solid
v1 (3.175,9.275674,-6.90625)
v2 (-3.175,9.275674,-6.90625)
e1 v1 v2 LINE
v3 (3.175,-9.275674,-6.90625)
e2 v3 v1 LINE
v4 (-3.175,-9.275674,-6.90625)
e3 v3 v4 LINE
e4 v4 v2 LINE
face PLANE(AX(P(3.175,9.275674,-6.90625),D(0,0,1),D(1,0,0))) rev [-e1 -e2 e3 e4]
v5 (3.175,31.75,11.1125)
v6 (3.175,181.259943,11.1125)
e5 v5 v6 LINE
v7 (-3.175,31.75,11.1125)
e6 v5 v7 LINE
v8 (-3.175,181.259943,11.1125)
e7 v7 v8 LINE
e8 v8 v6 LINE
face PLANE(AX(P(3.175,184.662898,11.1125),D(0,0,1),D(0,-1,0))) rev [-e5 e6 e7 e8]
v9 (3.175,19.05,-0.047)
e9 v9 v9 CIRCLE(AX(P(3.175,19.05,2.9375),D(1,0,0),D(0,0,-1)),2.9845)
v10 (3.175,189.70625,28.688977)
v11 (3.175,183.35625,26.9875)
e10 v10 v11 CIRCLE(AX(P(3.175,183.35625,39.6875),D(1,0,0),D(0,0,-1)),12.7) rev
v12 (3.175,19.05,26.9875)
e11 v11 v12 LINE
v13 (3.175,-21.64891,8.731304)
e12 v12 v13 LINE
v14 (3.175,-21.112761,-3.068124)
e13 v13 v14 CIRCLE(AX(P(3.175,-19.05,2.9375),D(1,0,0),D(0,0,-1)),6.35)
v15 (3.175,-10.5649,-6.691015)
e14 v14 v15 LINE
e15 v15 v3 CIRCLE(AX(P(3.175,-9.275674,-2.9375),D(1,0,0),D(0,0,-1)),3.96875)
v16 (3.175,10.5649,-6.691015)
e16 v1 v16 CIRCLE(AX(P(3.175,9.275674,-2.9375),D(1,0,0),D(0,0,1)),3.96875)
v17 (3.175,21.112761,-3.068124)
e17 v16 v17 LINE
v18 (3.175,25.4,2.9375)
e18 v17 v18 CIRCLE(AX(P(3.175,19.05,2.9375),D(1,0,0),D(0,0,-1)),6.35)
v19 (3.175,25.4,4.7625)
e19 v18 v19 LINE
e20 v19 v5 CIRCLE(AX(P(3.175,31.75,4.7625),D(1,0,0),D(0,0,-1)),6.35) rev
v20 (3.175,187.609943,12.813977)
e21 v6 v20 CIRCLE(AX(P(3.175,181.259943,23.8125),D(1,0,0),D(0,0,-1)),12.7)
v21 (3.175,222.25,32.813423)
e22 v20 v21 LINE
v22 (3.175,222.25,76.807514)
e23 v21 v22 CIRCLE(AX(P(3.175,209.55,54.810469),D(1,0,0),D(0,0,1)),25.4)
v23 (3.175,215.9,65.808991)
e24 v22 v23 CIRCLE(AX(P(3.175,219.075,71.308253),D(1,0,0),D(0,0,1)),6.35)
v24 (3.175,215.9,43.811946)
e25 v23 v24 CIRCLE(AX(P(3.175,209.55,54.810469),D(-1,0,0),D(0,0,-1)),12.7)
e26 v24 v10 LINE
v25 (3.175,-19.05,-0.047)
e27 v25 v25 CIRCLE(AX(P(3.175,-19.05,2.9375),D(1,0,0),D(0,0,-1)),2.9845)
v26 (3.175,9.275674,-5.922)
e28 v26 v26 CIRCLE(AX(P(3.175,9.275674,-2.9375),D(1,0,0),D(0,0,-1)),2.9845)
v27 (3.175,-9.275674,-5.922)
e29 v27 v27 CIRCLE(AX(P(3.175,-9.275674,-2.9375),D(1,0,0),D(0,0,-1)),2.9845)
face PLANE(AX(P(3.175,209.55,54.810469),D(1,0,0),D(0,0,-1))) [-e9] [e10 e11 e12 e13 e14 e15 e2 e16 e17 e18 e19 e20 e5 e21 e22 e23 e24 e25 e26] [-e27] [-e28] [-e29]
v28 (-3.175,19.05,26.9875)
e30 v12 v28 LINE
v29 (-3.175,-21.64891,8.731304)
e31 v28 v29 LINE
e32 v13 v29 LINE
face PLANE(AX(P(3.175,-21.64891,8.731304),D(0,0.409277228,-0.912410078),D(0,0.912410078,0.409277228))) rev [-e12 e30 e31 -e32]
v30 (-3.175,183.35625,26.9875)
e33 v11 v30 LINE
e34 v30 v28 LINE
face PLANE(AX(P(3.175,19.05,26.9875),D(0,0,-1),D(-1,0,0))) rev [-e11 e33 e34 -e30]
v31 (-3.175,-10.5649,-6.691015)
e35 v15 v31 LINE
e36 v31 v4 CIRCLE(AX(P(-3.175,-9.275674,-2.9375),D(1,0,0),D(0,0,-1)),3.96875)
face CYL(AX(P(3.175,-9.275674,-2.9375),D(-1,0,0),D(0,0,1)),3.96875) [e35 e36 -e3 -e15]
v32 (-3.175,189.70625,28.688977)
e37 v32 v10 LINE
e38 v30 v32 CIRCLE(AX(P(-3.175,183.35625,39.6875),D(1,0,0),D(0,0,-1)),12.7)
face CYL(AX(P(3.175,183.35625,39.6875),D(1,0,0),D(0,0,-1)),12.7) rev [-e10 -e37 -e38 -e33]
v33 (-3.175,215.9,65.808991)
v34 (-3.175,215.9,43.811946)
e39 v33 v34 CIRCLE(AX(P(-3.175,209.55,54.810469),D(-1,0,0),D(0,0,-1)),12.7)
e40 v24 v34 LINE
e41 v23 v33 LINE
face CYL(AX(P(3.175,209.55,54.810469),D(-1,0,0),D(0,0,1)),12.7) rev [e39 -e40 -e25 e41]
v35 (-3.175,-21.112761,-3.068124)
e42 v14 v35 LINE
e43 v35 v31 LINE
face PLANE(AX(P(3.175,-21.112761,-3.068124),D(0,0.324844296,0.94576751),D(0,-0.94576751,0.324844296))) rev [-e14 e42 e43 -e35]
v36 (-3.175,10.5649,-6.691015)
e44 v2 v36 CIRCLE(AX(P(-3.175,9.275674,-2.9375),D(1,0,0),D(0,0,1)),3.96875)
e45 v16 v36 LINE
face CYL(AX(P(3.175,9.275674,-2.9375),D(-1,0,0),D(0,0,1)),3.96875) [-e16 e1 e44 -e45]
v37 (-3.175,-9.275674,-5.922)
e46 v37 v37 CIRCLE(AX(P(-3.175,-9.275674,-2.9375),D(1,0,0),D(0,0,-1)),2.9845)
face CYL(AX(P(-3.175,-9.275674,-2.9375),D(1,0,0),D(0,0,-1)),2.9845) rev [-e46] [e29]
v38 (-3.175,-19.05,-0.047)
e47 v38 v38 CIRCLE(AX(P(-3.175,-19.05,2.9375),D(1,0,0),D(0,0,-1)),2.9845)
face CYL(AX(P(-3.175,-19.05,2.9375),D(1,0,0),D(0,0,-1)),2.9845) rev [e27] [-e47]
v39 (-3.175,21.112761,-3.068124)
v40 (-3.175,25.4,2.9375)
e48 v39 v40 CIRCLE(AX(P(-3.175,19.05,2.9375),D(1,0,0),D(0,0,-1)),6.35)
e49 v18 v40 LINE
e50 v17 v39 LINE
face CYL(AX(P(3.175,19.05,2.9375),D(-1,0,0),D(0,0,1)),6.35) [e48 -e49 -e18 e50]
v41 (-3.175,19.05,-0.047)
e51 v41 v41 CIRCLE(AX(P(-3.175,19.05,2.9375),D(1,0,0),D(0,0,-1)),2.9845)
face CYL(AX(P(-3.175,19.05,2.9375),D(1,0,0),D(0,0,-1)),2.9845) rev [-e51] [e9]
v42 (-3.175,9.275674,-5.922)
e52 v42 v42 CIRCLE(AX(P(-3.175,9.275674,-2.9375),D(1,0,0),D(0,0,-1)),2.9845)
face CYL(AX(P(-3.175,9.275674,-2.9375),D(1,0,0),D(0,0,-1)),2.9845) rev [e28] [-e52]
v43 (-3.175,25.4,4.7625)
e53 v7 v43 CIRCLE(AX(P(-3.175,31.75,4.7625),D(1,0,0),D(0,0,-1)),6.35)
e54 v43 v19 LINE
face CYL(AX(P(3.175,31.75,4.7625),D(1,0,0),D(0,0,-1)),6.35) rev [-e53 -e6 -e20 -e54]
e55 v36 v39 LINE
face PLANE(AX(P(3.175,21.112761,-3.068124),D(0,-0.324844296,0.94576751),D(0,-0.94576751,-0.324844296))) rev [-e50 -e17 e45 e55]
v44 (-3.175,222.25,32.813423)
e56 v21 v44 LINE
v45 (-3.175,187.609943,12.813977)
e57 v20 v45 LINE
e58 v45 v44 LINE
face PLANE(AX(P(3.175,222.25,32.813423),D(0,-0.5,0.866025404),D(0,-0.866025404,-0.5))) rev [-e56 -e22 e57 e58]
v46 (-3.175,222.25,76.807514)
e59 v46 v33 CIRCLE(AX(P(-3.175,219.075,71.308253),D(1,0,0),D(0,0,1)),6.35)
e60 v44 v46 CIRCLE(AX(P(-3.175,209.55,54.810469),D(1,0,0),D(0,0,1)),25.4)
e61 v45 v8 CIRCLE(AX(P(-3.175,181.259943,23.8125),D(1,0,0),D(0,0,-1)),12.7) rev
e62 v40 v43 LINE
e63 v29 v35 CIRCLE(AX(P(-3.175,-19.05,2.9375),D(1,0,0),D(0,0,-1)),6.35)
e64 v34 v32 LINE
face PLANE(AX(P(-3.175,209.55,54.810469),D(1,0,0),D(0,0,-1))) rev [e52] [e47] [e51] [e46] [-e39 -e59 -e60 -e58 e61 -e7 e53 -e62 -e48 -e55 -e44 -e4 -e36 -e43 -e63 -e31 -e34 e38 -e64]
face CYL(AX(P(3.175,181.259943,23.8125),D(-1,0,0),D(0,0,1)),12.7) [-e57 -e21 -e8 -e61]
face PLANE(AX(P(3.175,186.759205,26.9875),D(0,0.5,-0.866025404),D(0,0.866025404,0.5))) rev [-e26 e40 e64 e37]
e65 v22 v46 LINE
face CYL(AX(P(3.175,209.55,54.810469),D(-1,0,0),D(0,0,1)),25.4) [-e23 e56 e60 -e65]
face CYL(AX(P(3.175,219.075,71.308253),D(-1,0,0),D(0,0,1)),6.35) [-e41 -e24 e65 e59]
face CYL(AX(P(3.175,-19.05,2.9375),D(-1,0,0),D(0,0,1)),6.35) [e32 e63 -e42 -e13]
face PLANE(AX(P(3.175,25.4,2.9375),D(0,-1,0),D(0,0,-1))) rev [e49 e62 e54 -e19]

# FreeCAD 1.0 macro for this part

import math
import FreeCAD as App
import Part
import Sketcher
Q = App.Units.Quantity


def edges_at(feature, points):
    """Names of the edges that pass closest to the given points."""
    edges = feature.Shape.Edges
    near = lambda p: min(range(len(edges)), key=lambda i: edges[i].distToShape(Part.Vertex(*p))[0])
    return sorted({f"Edge{near(p) + 1}" for p in points})

doc = App.newDocument("Part")
body = doc.addObject("PartDesign::Body", "Body")

sketch1 = body.newObject("Sketcher::SketchObject", "Sketch")
sketch1.AttachmentSupport = (doc.getObject("YZ_Plane"), [""])
sketch1.MapMode = "FlatFace"
sketch1.addGeometry([
    Part.LineSegment(App.Vector(19.1, 27, 0), App.Vector(-21.6, 8.7, 0)),
    Part.ArcOfCircle(Part.Circle(App.Vector(-19.1, 2.9, 0), App.Vector(0, 0, 1), 6.3), math.radians(114), math.radians(251)),
    Part.LineSegment(App.Vector(-21.1, -3.1, 0), App.Vector(-10.6, -6.7, 0)),
    Part.ArcOfCircle(Part.Circle(App.Vector(-9.3, -2.9, 0), App.Vector(0, 0, 1), 4), math.radians(-108.96), math.radians(-90)),
    Part.LineSegment(App.Vector(-9.3, -6.9, 0), App.Vector(9.3, -6.9, 0)),
    Part.ArcOfCircle(Part.Circle(App.Vector(9.3, -2.9, 0), App.Vector(0, 0, 1), 4), math.radians(-90), math.radians(-71.04)),
    Part.LineSegment(App.Vector(10.6, -6.7, 0), App.Vector(21.1, -3.1, 0)),
    Part.ArcOfCircle(Part.Circle(App.Vector(19, 2.9, 0), App.Vector(0, 0, 1), 6.4), math.radians(-71), math.radians(0)),
    Part.LineSegment(App.Vector(25.4, 2.9, 0), App.Vector(25.4, 11.1, 0)),
    Part.LineSegment(App.Vector(25.4, 11.1, 0), App.Vector(184.7, 11.1, 0)),
    Part.LineSegment(App.Vector(184.7, 11.1, 0), App.Vector(222.2, 32.8, 0)),
    Part.ArcOfCircle(Part.Circle(App.Vector(209.5, 54.8, 0), App.Vector(0, 0, 1), 25.4), math.radians(-60), math.radians(60)),
    Part.ArcOfCircle(Part.Circle(App.Vector(219.1, 71.3, 0), App.Vector(0, 0, 1), 6.3), math.radians(60), math.radians(240)),
    Part.ArcOfCircle(Part.Circle(App.Vector(209.6, 54.8, 0), App.Vector(0, 0, 1), 12.7), math.radians(-60), math.radians(60)),
    Part.LineSegment(App.Vector(215.9, 43.8, 0), App.Vector(186.8, 27, 0)),
    Part.LineSegment(App.Vector(186.8, 27, 0), App.Vector(19.1, 27, 0)),
], False)
sketch1.addConstraint([
    Sketcher.Constraint("Tangent", 0, 2, 1, 1),
    Sketcher.Constraint("Tangent", 1, 2, 2, 1),
    Sketcher.Constraint("Tangent", 2, 2, 3, 1),
    Sketcher.Constraint("Tangent", 3, 2, 4, 1),
    Sketcher.Constraint("Tangent", 4, 2, 5, 1),
    Sketcher.Constraint("Tangent", 5, 2, 6, 1),
    Sketcher.Constraint("Tangent", 6, 2, 7, 1),
    Sketcher.Constraint("Tangent", 7, 2, 8, 1),
    Sketcher.Constraint("Coincident", 8, 2, 9, 1),
    Sketcher.Constraint("Coincident", 9, 2, 10, 1),
    Sketcher.Constraint("Tangent", 10, 2, 11, 1),
    Sketcher.Constraint("Tangent", 11, 2, 12, 1),
    Sketcher.Constraint("Tangent", 12, 2, 13, 2),
    Sketcher.Constraint("Tangent", 13, 1, 14, 1),
    Sketcher.Constraint("Coincident", 14, 2, 15, 1),
    Sketcher.Constraint("Coincident", 15, 2, 0, 1),
    Sketcher.Constraint("Horizontal", 4),
    Sketcher.Constraint("Vertical", 8),
    Sketcher.Constraint("Horizontal", 9),
    Sketcher.Constraint("Horizontal", 15),
    Sketcher.Constraint("Coincident", 13, 3, 11, 3),
    Sketcher.Constraint("Equal", 3, 5),
    Sketcher.Constraint("Equal", 1, 7),
    Sketcher.Constraint("Equal", 7, 12),
    Sketcher.Constraint("Symmetric", 1, 3, 7, 3, -2),
    Sketcher.Constraint("Parallel", 10, 14),
    Sketcher.Constraint("Horizontal", 2, 2, 5, 2),
    Sketcher.Constraint("Vertical", 10, 2, 11, 2),
    Sketcher.Constraint("Vertical", 7, 3, 15, 2),
    Sketcher.Constraint("Radius", 11, Q("1 in")),
    Sketcher.Constraint("Radius", 13, Q("0.5 in")),
    Sketcher.Constraint("DistanceX", -1, 1, 7, 2, Q("1 in")),
    Sketcher.Constraint("Angle", 10, Q("30 deg")),
    Sketcher.Constraint("Radius", 3, Q("0.15625 in")),
    Sketcher.Constraint("DistanceX", 1, 3, 11, 3, Q("9 in")),
    Sketcher.Constraint("DistanceY", -1, 1, 8, 2, Q("0.4375 in")),
    Sketcher.Constraint("DistanceY", -1, 1, 14, 2, Q("1.0625 in")),
    Sketcher.Constraint("DistanceX", 9, 1, 9, 2, 159.262898),
    Sketcher.Constraint("DistanceY", 8, 1, 8, 2, 8.175),
    Sketcher.Constraint("Distance", 2, 11.1527),
    Sketcher.Constraint("DistanceY", 3, 3, -1, 1, 2.9375),
])
pad1 = body.newObject("PartDesign::Pad", "Pad")
pad1.Profile = sketch1
pad1.Length = Q("0.25 in")
pad1.Midplane = True
doc.recompute()

fillet = body.newObject("PartDesign::Fillet", "Fillet")
fillet.Base = (pad1, edges_at(pad1, [(0, 186.759, 26.988), (0, 184.663, 11.113)]))
fillet.Radius = Q("0.5 in")

sketch2 = body.newObject("Sketcher::SketchObject", "Sketch001")
sketch2.AttachmentSupport = (doc.getObject("YZ_Plane"), [""])
sketch2.MapMode = "FlatFace"
sketch2.AttachmentOffset = App.Placement(App.Vector(0, 0, 0.125 * 25.4), App.Rotation())
sketch2.addGeometry([
    Part.Circle(App.Vector(19.1, 2.9, 0), App.Vector(0, 0, 1), 3),
    Part.Circle(App.Vector(-9.3, -2.9, 0), App.Vector(0, 0, 1), 3),
    Part.Circle(App.Vector(-19.1, 2.9, 0), App.Vector(0, 0, 1), 3),
    Part.Circle(App.Vector(9.3, -2.9, 0), App.Vector(0, 0, 1), 3),
], False)
sketch2.addConstraint([
    Sketcher.Constraint("Equal", 0, 1),
    Sketcher.Constraint("Equal", 1, 2),
    Sketcher.Constraint("Equal", 2, 3),
    Sketcher.Constraint("Symmetric", 0, 3, 2, 3, -2),
    Sketcher.Constraint("Symmetric", 1, 3, 3, 3, -2),
    Sketcher.Constraint("Diameter", 0, Q("0.235 in")),
    Sketcher.Constraint("DistanceX", 2, 3, 0, 3, Q("1.5 in")),
    Sketcher.Constraint("DistanceY", -1, 1, 0, 3, 2.9375),
    Sketcher.Constraint("DistanceY", 1, 3, -1, 1, 2.9375),
    Sketcher.Constraint("DistanceX", 1, 3, -1, 1, 9.275674),
])
pocket1 = body.newObject("PartDesign::Pocket", "Pocket")
pocket1.Profile = sketch2
pocket1.Type = "ThroughAll"
doc.recompute()

fillet2 = body.newObject("PartDesign::Fillet", "Fillet001")
fillet2.Base = (pocket1, edges_at(pocket1, [(0, 25.4, 11.113)]))
fillet2.Radius = Q("0.25 in")

doc.recompute()
